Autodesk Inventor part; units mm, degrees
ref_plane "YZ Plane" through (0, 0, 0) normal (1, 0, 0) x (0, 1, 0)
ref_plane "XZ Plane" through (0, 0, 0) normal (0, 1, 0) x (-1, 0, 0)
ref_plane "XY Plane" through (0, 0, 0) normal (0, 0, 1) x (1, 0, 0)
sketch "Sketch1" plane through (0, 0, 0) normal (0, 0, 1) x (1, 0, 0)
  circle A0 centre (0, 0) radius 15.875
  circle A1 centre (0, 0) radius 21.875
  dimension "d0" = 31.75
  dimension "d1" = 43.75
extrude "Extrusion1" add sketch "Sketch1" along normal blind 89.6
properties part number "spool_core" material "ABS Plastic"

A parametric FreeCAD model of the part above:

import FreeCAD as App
import Part
import Sketcher
Q = App.Units.Quantity

doc = App.newDocument("Part")
body = doc.addObject("PartDesign::Body", "Body")

# Sketch on XY plane
sketch1 = body.newObject("Sketcher::SketchObject", "Sketch")
sketch1.AttachmentSupport = (doc.getObject("XY_Plane"), [""])
sketch1.MapMode = "FlatFace"
sketch1.addGeometry(Part.Circle(App.Vector(0, 0, 0), App.Vector(0, 0, 1), 22), False)
sketch1.addGeometry(Part.Circle(App.Vector(0, 0, 0), App.Vector(0, 0, 1), 16), False)
sketch1.addConstraint(Sketcher.Constraint("Coincident", 0, 3, -1, 1))
sketch1.addConstraint(Sketcher.Constraint("Coincident", 1, 3, -1, 1))
sketch1.addConstraint(Sketcher.Constraint("Diameter", 0, Q("43.75 mm")))
sketch1.addConstraint(Sketcher.Constraint("Diameter", 1, Q("31.75 mm")))
pad1 = body.newObject("PartDesign::Pad", "Pad")
pad1.Profile = sketch1
pad1.Length = 89.6

doc.recompute()
